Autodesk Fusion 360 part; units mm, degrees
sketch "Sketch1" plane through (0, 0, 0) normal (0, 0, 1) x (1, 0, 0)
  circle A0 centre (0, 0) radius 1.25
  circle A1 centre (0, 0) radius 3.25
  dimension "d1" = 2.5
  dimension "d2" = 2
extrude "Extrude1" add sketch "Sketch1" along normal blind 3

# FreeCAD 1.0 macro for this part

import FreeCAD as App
import Part
import Sketcher

doc = App.newDocument("Part")
body = doc.addObject("PartDesign::Body", "Body")

sketch1 = body.newObject("Sketcher::SketchObject", "Sketch")
sketch1.AttachmentSupport = (doc.getObject("XY_Plane"), [""])
sketch1.MapMode = "FlatFace"
sketch1.addGeometry(Part.Circle(App.Vector(0, 0, 0), App.Vector(0, 0, 1), 3.25), False)
sketch1.addGeometry(Part.Circle(App.Vector(0, 0, 0), App.Vector(0, 0, 1), 1.25), False)
sketch1.addConstraint(Sketcher.Constraint("Coincident", 0, 3, -1, 1))
sketch1.addConstraint(Sketcher.Constraint("Coincident", 1, 3, -1, 1))
sketch1.addConstraint(Sketcher.Constraint("Diameter", 1, 2.5))
sketch1.addConstraint(Sketcher.Constraint("Diameter", 0, 6.5))
pad1 = body.newObject("PartDesign::Pad", "Pad")
pad1.Profile = sketch1
pad1.Length = 3

doc.recompute()
